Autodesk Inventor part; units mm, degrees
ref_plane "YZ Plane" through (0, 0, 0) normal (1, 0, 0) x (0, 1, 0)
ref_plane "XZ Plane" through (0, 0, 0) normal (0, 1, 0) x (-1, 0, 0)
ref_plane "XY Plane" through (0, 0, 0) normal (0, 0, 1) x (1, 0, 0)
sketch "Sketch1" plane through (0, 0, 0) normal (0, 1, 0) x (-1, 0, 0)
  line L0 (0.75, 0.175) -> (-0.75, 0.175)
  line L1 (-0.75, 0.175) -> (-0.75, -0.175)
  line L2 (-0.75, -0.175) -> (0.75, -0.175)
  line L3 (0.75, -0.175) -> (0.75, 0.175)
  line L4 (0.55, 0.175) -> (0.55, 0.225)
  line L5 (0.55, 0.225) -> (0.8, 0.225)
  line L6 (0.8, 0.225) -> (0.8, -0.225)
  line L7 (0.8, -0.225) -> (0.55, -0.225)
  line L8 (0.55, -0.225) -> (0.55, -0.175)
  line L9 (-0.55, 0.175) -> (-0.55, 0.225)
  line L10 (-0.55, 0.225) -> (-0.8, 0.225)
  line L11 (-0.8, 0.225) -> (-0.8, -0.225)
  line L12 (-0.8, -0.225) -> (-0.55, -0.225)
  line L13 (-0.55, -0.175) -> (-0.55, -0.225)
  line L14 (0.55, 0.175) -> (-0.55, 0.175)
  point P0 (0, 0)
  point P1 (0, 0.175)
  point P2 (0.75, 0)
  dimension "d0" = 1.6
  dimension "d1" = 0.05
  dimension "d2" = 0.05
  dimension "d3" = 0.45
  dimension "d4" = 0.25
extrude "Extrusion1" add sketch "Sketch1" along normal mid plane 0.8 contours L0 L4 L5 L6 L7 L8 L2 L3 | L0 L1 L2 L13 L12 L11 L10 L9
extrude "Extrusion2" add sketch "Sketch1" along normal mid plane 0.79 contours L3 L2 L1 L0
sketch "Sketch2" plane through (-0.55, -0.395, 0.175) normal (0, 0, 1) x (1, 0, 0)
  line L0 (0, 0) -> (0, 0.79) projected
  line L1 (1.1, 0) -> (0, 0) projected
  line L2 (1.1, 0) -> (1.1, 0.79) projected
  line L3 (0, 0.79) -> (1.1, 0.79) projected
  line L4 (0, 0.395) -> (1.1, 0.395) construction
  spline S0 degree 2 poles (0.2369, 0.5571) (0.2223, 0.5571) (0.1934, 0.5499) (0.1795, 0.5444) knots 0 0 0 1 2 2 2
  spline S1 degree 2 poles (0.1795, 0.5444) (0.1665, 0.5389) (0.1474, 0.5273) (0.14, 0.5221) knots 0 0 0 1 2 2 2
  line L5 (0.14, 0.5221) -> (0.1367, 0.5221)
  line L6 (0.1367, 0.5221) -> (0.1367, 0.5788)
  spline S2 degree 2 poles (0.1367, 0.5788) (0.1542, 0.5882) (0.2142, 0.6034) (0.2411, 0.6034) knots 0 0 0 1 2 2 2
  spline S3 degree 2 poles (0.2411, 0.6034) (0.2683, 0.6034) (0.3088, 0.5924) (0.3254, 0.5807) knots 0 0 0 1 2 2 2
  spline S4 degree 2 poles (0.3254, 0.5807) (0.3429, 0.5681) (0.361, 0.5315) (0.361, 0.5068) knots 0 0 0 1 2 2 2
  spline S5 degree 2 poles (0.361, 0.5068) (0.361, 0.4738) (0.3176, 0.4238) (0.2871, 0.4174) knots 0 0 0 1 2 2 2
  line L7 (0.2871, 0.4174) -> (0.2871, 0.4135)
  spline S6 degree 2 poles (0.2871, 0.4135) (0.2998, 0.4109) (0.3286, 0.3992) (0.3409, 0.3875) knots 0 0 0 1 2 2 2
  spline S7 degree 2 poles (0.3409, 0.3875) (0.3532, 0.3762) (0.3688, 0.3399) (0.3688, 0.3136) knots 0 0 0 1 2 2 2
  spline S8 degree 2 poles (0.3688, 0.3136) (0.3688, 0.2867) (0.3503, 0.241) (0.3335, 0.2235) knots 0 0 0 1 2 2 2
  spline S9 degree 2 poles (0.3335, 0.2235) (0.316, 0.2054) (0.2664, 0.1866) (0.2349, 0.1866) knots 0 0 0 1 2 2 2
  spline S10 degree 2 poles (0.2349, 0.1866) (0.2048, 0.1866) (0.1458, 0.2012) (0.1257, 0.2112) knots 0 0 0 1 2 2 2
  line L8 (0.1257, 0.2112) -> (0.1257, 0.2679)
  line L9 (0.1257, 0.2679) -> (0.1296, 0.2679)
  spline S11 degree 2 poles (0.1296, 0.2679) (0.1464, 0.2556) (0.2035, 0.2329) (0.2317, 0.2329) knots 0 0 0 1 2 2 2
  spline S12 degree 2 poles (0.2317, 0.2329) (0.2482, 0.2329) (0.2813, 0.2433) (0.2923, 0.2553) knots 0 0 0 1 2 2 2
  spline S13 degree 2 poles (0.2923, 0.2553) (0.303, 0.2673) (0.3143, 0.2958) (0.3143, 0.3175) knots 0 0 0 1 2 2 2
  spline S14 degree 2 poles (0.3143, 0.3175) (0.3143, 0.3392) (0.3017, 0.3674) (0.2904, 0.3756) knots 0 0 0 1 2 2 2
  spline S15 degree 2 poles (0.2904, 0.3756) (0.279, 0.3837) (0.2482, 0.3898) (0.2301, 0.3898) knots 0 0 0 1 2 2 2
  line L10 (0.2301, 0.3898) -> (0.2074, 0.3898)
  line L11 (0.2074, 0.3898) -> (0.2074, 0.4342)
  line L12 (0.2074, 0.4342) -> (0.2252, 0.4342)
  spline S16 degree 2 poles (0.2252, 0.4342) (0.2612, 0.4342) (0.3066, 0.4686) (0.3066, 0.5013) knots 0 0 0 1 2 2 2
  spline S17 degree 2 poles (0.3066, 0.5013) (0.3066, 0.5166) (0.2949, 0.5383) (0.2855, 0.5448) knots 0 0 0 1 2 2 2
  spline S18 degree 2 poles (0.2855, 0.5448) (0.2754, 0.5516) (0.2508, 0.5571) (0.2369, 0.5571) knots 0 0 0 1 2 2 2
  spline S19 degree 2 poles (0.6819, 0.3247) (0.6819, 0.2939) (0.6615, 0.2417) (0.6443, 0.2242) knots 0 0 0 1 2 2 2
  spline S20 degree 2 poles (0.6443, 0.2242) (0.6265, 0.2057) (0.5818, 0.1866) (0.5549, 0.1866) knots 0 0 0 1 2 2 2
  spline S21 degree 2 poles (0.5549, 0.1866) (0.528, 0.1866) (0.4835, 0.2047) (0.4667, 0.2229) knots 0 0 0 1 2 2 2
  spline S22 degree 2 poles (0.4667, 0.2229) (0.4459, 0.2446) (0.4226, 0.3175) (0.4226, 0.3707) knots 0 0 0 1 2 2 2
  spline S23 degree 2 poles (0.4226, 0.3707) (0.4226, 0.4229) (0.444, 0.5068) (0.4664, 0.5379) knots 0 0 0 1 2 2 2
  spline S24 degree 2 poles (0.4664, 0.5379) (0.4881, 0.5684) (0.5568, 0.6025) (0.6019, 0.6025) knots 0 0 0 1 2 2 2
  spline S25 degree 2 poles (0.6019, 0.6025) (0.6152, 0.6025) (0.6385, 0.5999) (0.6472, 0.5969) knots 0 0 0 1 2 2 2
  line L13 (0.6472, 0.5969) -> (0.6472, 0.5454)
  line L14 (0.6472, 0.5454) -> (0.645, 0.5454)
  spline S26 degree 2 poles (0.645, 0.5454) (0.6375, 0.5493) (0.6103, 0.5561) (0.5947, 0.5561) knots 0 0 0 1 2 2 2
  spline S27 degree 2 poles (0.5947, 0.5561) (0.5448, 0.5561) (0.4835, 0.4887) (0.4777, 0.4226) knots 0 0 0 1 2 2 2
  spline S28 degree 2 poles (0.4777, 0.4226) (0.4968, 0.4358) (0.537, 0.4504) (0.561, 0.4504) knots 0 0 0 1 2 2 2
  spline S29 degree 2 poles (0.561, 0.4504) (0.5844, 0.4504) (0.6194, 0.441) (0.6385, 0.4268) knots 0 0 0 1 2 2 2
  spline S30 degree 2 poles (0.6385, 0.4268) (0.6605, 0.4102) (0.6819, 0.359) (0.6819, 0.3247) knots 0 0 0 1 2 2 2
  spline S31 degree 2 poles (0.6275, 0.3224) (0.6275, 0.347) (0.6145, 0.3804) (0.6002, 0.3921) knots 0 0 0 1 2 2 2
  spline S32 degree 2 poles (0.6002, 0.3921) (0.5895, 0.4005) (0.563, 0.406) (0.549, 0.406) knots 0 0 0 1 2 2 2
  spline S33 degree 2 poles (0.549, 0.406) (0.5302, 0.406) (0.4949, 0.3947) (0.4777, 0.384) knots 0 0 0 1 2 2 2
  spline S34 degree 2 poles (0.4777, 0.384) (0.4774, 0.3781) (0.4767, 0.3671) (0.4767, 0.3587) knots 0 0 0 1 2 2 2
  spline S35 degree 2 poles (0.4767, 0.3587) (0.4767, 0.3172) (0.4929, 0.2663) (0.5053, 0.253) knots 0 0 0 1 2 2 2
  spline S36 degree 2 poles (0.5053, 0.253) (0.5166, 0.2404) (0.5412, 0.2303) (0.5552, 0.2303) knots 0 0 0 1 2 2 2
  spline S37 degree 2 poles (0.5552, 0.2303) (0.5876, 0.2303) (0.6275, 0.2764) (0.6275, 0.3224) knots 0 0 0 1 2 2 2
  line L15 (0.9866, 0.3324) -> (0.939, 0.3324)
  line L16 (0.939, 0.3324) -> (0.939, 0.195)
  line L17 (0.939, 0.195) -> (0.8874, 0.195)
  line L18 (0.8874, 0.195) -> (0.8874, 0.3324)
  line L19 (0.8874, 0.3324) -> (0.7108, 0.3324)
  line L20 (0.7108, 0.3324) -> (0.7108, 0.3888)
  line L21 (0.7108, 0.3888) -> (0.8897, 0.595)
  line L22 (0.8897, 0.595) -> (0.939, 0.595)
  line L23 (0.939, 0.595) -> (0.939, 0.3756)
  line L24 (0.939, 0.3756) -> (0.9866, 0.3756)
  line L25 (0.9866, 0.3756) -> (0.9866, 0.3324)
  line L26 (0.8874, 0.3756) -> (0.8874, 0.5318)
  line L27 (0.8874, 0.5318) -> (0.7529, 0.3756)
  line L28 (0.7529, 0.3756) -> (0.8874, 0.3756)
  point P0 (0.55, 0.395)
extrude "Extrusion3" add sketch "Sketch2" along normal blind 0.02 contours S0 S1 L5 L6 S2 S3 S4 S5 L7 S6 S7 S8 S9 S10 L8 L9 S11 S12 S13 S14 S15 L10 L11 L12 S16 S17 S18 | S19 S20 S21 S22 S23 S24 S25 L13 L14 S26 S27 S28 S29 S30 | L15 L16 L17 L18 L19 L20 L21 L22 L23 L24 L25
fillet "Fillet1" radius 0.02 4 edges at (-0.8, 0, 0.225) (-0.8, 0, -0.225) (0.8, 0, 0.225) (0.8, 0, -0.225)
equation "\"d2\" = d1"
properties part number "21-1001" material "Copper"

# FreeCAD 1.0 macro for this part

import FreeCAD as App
import Part
import Sketcher
Q = App.Units.Quantity


def edges_at(feature, points):
    """Names of the edges that pass closest to the given points."""
    edges = feature.Shape.Edges
    near = lambda p: min(range(len(edges)), key=lambda i: edges[i].distToShape(Part.Vertex(*p))[0])
    return sorted({f"Edge{near(p) + 1}" for p in points})

doc = App.newDocument("Part")
body = doc.addObject("PartDesign::Body", "Body")
body.AllowCompound = True

# Sketch on XZ plane
sketch1 = body.newObject("Sketcher::SketchObject", "Sketch")
sketch1.AttachmentSupport = (doc.getObject("XZ_Plane"), [""])
sketch1.MapMode = "FlatFace"
sketch1.addGeometry([
    Part.LineSegment(App.Vector(-0.55, 0.175, 0), App.Vector(-0.75, 0.175, 0)),  # 0
    Part.LineSegment(App.Vector(-0.75, 0.175, 0), App.Vector(-0.75, -0.175, 0)),  # 1
    Part.LineSegment(App.Vector(-0.75, -0.175, 0), App.Vector(-0.55, -0.175, 0)),  # 2
    Part.LineSegment(App.Vector(-0.55, -0.175, 0), App.Vector(-0.55, -0.225, 0)),  # 3
    Part.LineSegment(App.Vector(-0.55, -0.225, 0), App.Vector(-0.8, -0.225, 0)),  # 4
    Part.LineSegment(App.Vector(-0.8, -0.225, 0), App.Vector(-0.8, 0.225, 0)),  # 5
    Part.LineSegment(App.Vector(-0.8, 0.225, 0), App.Vector(-0.55, 0.225, 0)),  # 6
    Part.LineSegment(App.Vector(-0.55, 0.225, 0), App.Vector(-0.55, 0.175, 0)),  # 7
    Part.LineSegment(App.Vector(0.75, 0.175, 0), App.Vector(0.55, 0.175, 0)),  # 8
    Part.LineSegment(App.Vector(0.55, 0.175, 0), App.Vector(0.55, 0.225, 0)),  # 9
    Part.LineSegment(App.Vector(0.55, 0.225, 0), App.Vector(0.8, 0.225, 0)),  # 10
    Part.LineSegment(App.Vector(0.8, 0.225, 0), App.Vector(0.8, -0.225, 0)),  # 11
    Part.LineSegment(App.Vector(0.8, -0.225, 0), App.Vector(0.55, -0.225, 0)),  # 12
    Part.LineSegment(App.Vector(0.55, -0.225, 0), App.Vector(0.55, -0.175, 0)),  # 13
    Part.LineSegment(App.Vector(0.55, -0.175, 0), App.Vector(0.75, -0.175, 0)),  # 14
    Part.LineSegment(App.Vector(0.75, -0.175, 0), App.Vector(0.75, 0.175, 0)),  # 15
], False)
sketch1.addConstraint([
    Sketcher.Constraint("Coincident", 0, 2, 1, 1),
    Sketcher.Constraint("Coincident", 1, 2, 2, 1),
    Sketcher.Constraint("Coincident", 2, 2, 3, 1),
    Sketcher.Constraint("Coincident", 3, 2, 4, 1),
    Sketcher.Constraint("Coincident", 4, 2, 5, 1),
    Sketcher.Constraint("Coincident", 5, 2, 6, 1),
    Sketcher.Constraint("Coincident", 6, 2, 7, 1),
    Sketcher.Constraint("Coincident", 7, 2, 0, 1),
    Sketcher.Constraint("Coincident", 8, 2, 9, 1),
    Sketcher.Constraint("Coincident", 9, 2, 10, 1),
    Sketcher.Constraint("Coincident", 10, 2, 11, 1),
    Sketcher.Constraint("Coincident", 11, 2, 12, 1),
    Sketcher.Constraint("Coincident", 12, 2, 13, 1),
    Sketcher.Constraint("Coincident", 13, 2, 14, 1),
    Sketcher.Constraint("Coincident", 14, 2, 15, 1),
    Sketcher.Constraint("Coincident", 15, 2, 8, 1),
    Sketcher.Constraint("Horizontal", 0),
    Sketcher.Constraint("Vertical", 1),
    Sketcher.Constraint("Horizontal", 2),
    Sketcher.Constraint("Vertical", 3),
    Sketcher.Constraint("Horizontal", 4),
    Sketcher.Constraint("Vertical", 5),
    Sketcher.Constraint("Horizontal", 6),
    Sketcher.Constraint("Vertical", 7),
    Sketcher.Constraint("Horizontal", 8),
    Sketcher.Constraint("Vertical", 9),
    Sketcher.Constraint("Horizontal", 10),
    Sketcher.Constraint("Vertical", 11),
    Sketcher.Constraint("Horizontal", 12),
    Sketcher.Constraint("Vertical", 13),
    Sketcher.Constraint("Horizontal", 14),
    Sketcher.Constraint("Vertical", 15),
    Sketcher.Constraint("Symmetric", 2, 2, 8, 2, -1, 1),
    Sketcher.Constraint("Symmetric", 4, 2, 10, 2, -1, 1),
    Sketcher.Constraint("Symmetric", 6, 2, 12, 2, -1, 1),
    Sketcher.Constraint("Symmetric", 0, 2, 14, 2, -1, 1),
    Sketcher.Constraint("Symmetric", 7, 2, 8, 2, -2),
    Sketcher.Constraint("Horizontal", 6, 2, 9, 2),
    Sketcher.Constraint("DistanceX", 4, 2, 4, 1, 0.25),
    Sketcher.Constraint("DistanceY", 3, 2, 3, 1, 0.05),
    Sketcher.Constraint("DistanceY", 5, 1, 5, 2, 0.45),
    Sketcher.Constraint("DistanceX", 4, 2, 1, 2, 0.05),
    Sketcher.Constraint("DistanceX", 4, 2, -1, 1, 0.8),
])
pad1 = body.newObject("PartDesign::Pad", "Pad")
pad1.Profile = sketch1
pad1.Length = 0.8
pad1.Midplane = True

# Sketch on XZ plane
sketch2 = body.newObject("Sketcher::SketchObject", "Sketch001")
sketch2.AttachmentSupport = (doc.getObject("XZ_Plane"), [""])
sketch2.MapMode = "FlatFace"
sketch2.addGeometry([
    Part.LineSegment(App.Vector(-0.75, -0.175, 0), App.Vector(-0.75, 0.175, 0)),
    Part.LineSegment(App.Vector(-0.75, 0.175, 0), App.Vector(0.75, 0.175, 0)),
    Part.LineSegment(App.Vector(0.75, 0.175, 0), App.Vector(0.75, -0.175, 0)),
    Part.LineSegment(App.Vector(0.75, -0.175, 0), App.Vector(-0.75, -0.175, 0)),
], False)
sketch2.addConstraint([
    Sketcher.Constraint("Coincident", 0, 2, 1, 1),
    Sketcher.Constraint("Coincident", 1, 2, 2, 1),
    Sketcher.Constraint("Coincident", 2, 2, 3, 1),
    Sketcher.Constraint("Coincident", 3, 2, 0, 1),
    Sketcher.Constraint("Vertical", 0),
    Sketcher.Constraint("Horizontal", 1),
    Sketcher.Constraint("Vertical", 2),
    Sketcher.Constraint("Horizontal", 3),
    Sketcher.Constraint("Symmetric", 0, 2, 2, 2, -1, 1),
    Sketcher.Constraint("DistanceX", 1, 1, 1, 2, 1.5),
    Sketcher.Constraint("DistanceY", 0, 1, 0, 2, 0.35),
])
pad2 = body.newObject("PartDesign::Pad", "Pad001")
pad2.Profile = sketch2
pad2.Length = 0.79
pad2.Midplane = True

# Sketch on XY plane
sketch3 = body.newObject("Sketcher::SketchObject", "Sketch002")
sketch3.AttachmentSupport = (doc.getObject("XY_Plane"), [""])
sketch3.MapMode = "FlatFace"
sketch3.AttachmentOffset = App.Placement(App.Vector(0, 0, 0.175), App.Rotation())
sketch3.addGeometry([
    Part.BSplineCurve([App.Vector(-0.3131, 0.1621, 0), App.Vector(-0.3277, 0.1621, 0), App.Vector(-0.3566, 0.1549, 0), App.Vector(-0.3705, 0.1494, 0)], [3, 1, 3], [0, 1, 2], False, 2, [1, 1, 1, 1], False),  # 0
    Part.BSplineCurve([App.Vector(-0.2645, 0.1498, 0), App.Vector(-0.2746, 0.1566, 0), App.Vector(-0.2992, 0.1621, 0), App.Vector(-0.3131, 0.1621, 0)], [3, 1, 3], [0, 1, 2], False, 2, [1, 1, 1, 1], False),  # 1
    Part.BSplineCurve([App.Vector(-0.2434, 0.1063, 0), App.Vector(-0.2434, 0.1216, 0), App.Vector(-0.2551, 0.1433, 0), App.Vector(-0.2645, 0.1498, 0)], [3, 1, 3], [0, 1, 2], False, 2, [1, 1, 1, 1], False),  # 2
    Part.BSplineCurve([App.Vector(-0.3248, 0.0392, 0), App.Vector(-0.2888, 0.0392, 0), App.Vector(-0.2434, 0.0736, 0), App.Vector(-0.2434, 0.1063, 0)], [3, 1, 3], [0, 1, 2], False, 2, [1, 1, 1, 1], False),  # 3
    Part.LineSegment(App.Vector(-0.3248, 0.0392, 0), App.Vector(-0.3426, 0.0392, 0)),  # 4
    Part.LineSegment(App.Vector(-0.3426, 0.0392, 0), App.Vector(-0.3426, -0.0052, 0)),  # 5
    Part.LineSegment(App.Vector(-0.3426, -0.0052, 0), App.Vector(-0.3199, -0.0052, 0)),  # 6
    Part.BSplineCurve([App.Vector(-0.2596, -0.0194, 0), App.Vector(-0.271, -0.0113, 0), App.Vector(-0.3018, -0.0052, 0), App.Vector(-0.3199, -0.0052, 0)], [3, 1, 3], [0, 1, 2], False, 2, [1, 1, 1, 1], False),  # 7
    Part.BSplineCurve([App.Vector(-0.2357, -0.0775, 0), App.Vector(-0.2357, -0.0558, 0), App.Vector(-0.2483, -0.0276, 0), App.Vector(-0.2596, -0.0194, 0)], [3, 1, 3], [0, 1, 2], False, 2, [1, 1, 1, 1], False),  # 8
    Part.BSplineCurve([App.Vector(-0.2577, -0.1397, 0), App.Vector(-0.247, -0.1277, 0), App.Vector(-0.2357, -0.0992, 0), App.Vector(-0.2357, -0.0775, 0)], [3, 1, 3], [0, 1, 2], False, 2, [1, 1, 1, 1], False),  # 9
    Part.BSplineCurve([App.Vector(-0.3183, -0.1621, 0), App.Vector(-0.3018, -0.1621, 0), App.Vector(-0.2687, -0.1517, 0), App.Vector(-0.2577, -0.1397, 0)], [3, 1, 3], [0, 1, 2], False, 2, [1, 1, 1, 1], False),  # 10
    Part.BSplineCurve([App.Vector(-0.4204, -0.1271, 0), App.Vector(-0.4036, -0.1394, 0), App.Vector(-0.3465, -0.1621, 0), App.Vector(-0.3183, -0.1621, 0)], [3, 1, 3], [0, 1, 2], False, 2, [1, 1, 1, 1], False),  # 11
    Part.LineSegment(App.Vector(-0.4204, -0.1271, 0), App.Vector(-0.4243, -0.1271, 0)),  # 12
    Part.LineSegment(App.Vector(-0.4243, -0.1271, 0), App.Vector(-0.4243, -0.1838, 0)),  # 13
    Part.BSplineCurve([App.Vector(-0.3151, -0.2084, 0), App.Vector(-0.3452, -0.2084, 0), App.Vector(-0.4042, -0.1938, 0), App.Vector(-0.4243, -0.1838, 0)], [3, 1, 3], [0, 1, 2], False, 2, [1, 1, 1, 1], False),  # 14
    Part.BSplineCurve([App.Vector(-0.2165, -0.1715, 0), App.Vector(-0.234, -0.1896, 0), App.Vector(-0.2836, -0.2084, 0), App.Vector(-0.3151, -0.2084, 0)], [3, 1, 3], [0, 1, 2], False, 2, [1, 1, 1, 1], False),  # 15
    Part.BSplineCurve([App.Vector(-0.1812, -0.0814, 0), App.Vector(-0.1812, -0.1083, 0), App.Vector(-0.1997, -0.154, 0), App.Vector(-0.2165, -0.1715, 0)], [3, 1, 3], [0, 1, 2], False, 2, [1, 1, 1, 1], False),  # 16
    Part.BSplineCurve([App.Vector(-0.2091, -0.0075, 0), App.Vector(-0.1968, -0.0188, 0), App.Vector(-0.1812, -0.0551, 0), App.Vector(-0.1812, -0.0814, 0)], [3, 1, 3], [0, 1, 2], False, 2, [1, 1, 1, 1], False),  # 17
    Part.BSplineCurve([App.Vector(-0.2629, 0.0185, 0), App.Vector(-0.2502, 0.0159, 0), App.Vector(-0.2214, 0.0042, 0), App.Vector(-0.2091, -0.0075, 0)], [3, 1, 3], [0, 1, 2], False, 2, [1, 1, 1, 1], False),  # 18
    Part.LineSegment(App.Vector(-0.2629, 0.0185, 0), App.Vector(-0.2629, 0.0224, 0)),  # 19
    Part.BSplineCurve([App.Vector(-0.189, 0.1118, 0), App.Vector(-0.189, 0.0788, 0), App.Vector(-0.2324, 0.0288, 0), App.Vector(-0.2629, 0.0224, 0)], [3, 1, 3], [0, 1, 2], False, 2, [1, 1, 1, 1], False),  # 20
    Part.BSplineCurve([App.Vector(-0.2246, 0.1857, 0), App.Vector(-0.2071, 0.1731, 0), App.Vector(-0.189, 0.1365, 0), App.Vector(-0.189, 0.1118, 0)], [3, 1, 3], [0, 1, 2], False, 2, [1, 1, 1, 1], False),  # 21
    Part.BSplineCurve([App.Vector(-0.3089, 0.2084, 0), App.Vector(-0.2817, 0.2084, 0), App.Vector(-0.2412, 0.1974, 0), App.Vector(-0.2246, 0.1857, 0)], [3, 1, 3], [0, 1, 2], False, 2, [1, 1, 1, 1], False),  # 22
    Part.BSplineCurve([App.Vector(-0.4133, 0.1838, 0), App.Vector(-0.3958, 0.1932, 0), App.Vector(-0.3358, 0.2084, 0), App.Vector(-0.3089, 0.2084, 0)], [3, 1, 3], [0, 1, 2], False, 2, [1, 1, 1, 1], False),  # 23
    Part.LineSegment(App.Vector(-0.4133, 0.1838, 0), App.Vector(-0.4133, 0.1271, 0)),  # 24
    Part.LineSegment(App.Vector(-0.4133, 0.1271, 0), App.Vector(-0.41, 0.1271, 0)),  # 25
    Part.BSplineCurve([App.Vector(-0.3705, 0.1494, 0), App.Vector(-0.3835, 0.1439, 0), App.Vector(-0.4026, 0.1323, 0), App.Vector(-0.41, 0.1271, 0)], [3, 1, 3], [0, 1, 2], False, 2, [1, 1, 1, 1], False),  # 26
    Part.BSplineCurve([App.Vector(0.1319, -0.0703, 0), App.Vector(0.1319, -0.1011, 0), App.Vector(0.1115, -0.1533, 0), App.Vector(0.0943, -0.1708, 0)], [3, 1, 3], [0, 1, 2], False, 2, [1, 1, 1, 1], False),  # 27
    Part.BSplineCurve([App.Vector(0.0885, 0.0318, 0), App.Vector(0.1105, 0.0152, 0), App.Vector(0.1319, -0.036, 0), App.Vector(0.1319, -0.0703, 0)], [3, 1, 3], [0, 1, 2], False, 2, [1, 1, 1, 1], False),  # 28
    Part.BSplineCurve([App.Vector(0.011, 0.0554, 0), App.Vector(0.0344, 0.0554, 0), App.Vector(0.0694, 0.046, 0), App.Vector(0.0885, 0.0318, 0)], [3, 1, 3], [0, 1, 2], False, 2, [1, 1, 1, 1], False),  # 29
    Part.BSplineCurve([App.Vector(-0.0723, 0.0276, 0), App.Vector(-0.0532, 0.0408, 0), App.Vector(-0.013, 0.0554, 0), App.Vector(0.011, 0.0554, 0)], [3, 1, 3], [0, 1, 2], False, 2, [1, 1, 1, 1], False),  # 30
    Part.BSplineCurve([App.Vector(0.0447, 0.1611, 0), App.Vector(-0.0052, 0.1611, 0), App.Vector(-0.0665, 0.0937, 0), App.Vector(-0.0723, 0.0276, 0)], [3, 1, 3], [0, 1, 2], False, 2, [1, 1, 1, 1], False),  # 31
    Part.BSplineCurve([App.Vector(0.095, 0.1504, 0), App.Vector(0.0875, 0.1543, 0), App.Vector(0.0603, 0.1611, 0), App.Vector(0.0447, 0.1611, 0)], [3, 1, 3], [0, 1, 2], False, 2, [1, 1, 1, 1], False),  # 32
    Part.LineSegment(App.Vector(0.095, 0.1504, 0), App.Vector(0.0972, 0.1504, 0)),  # 33
    Part.LineSegment(App.Vector(0.0972, 0.1504, 0), App.Vector(0.0972, 0.2019, 0)),  # 34
    Part.BSplineCurve([App.Vector(0.0519, 0.2075, 0), App.Vector(0.0652, 0.2075, 0), App.Vector(0.0885, 0.2049, 0), App.Vector(0.0972, 0.2019, 0)], [3, 1, 3], [0, 1, 2], False, 2, [1, 1, 1, 1], False),  # 35
    Part.BSplineCurve([App.Vector(-0.0836, 0.1429, 0), App.Vector(-0.0619, 0.1734, 0), App.Vector(0.0068, 0.2075, 0), App.Vector(0.0519, 0.2075, 0)], [3, 1, 3], [0, 1, 2], False, 2, [1, 1, 1, 1], False),  # 36
    Part.BSplineCurve([App.Vector(-0.1274, -0.0243, 0), App.Vector(-0.1274, 0.0279, 0), App.Vector(-0.106, 0.1118, 0), App.Vector(-0.0836, 0.1429, 0)], [3, 1, 3], [0, 1, 2], False, 2, [1, 1, 1, 1], False),  # 37
    Part.BSplineCurve([App.Vector(-0.0833, -0.1721, 0), App.Vector(-0.1041, -0.1504, 0), App.Vector(-0.1274, -0.0775, 0), App.Vector(-0.1274, -0.0243, 0)], [3, 1, 3], [0, 1, 2], False, 2, [1, 1, 1, 1], False),  # 38
    Part.BSplineCurve([App.Vector(0.0049, -0.2084, 0), App.Vector(-0.022, -0.2084, 0), App.Vector(-0.0665, -0.1903, 0), App.Vector(-0.0833, -0.1721, 0)], [3, 1, 3], [0, 1, 2], False, 2, [1, 1, 1, 1], False),  # 39
    Part.BSplineCurve([App.Vector(0.0943, -0.1708, 0), App.Vector(0.0765, -0.1893, 0), App.Vector(0.0318, -0.2084, 0), App.Vector(0.0049, -0.2084, 0)], [3, 1, 3], [0, 1, 2], False, 2, [1, 1, 1, 1], False),  # 40
    Part.BSplineCurve([App.Vector(0.0775, -0.0726, 0), App.Vector(0.0775, -0.048, 0), App.Vector(0.0645, -0.0146, 0), App.Vector(0.0502, -0.0029, 0)], [3, 1, 3], [0, 1, 2], False, 2, [1, 1, 1, 1], False),  # 41
    Part.BSplineCurve([App.Vector(0.0052, -0.1647, 0), App.Vector(0.0376, -0.1647, 0), App.Vector(0.0775, -0.1186, 0), App.Vector(0.0775, -0.0726, 0)], [3, 1, 3], [0, 1, 2], False, 2, [1, 1, 1, 1], False),  # 42
    Part.BSplineCurve([App.Vector(-0.0447, -0.142, 0), App.Vector(-0.0334, -0.1546, 0), App.Vector(-0.0088, -0.1647, 0), App.Vector(0.0052, -0.1647, 0)], [3, 1, 3], [0, 1, 2], False, 2, [1, 1, 1, 1], False),  # 43
    Part.BSplineCurve([App.Vector(-0.0733, -0.0363, 0), App.Vector(-0.0733, -0.0778, 0), App.Vector(-0.0571, -0.1287, 0), App.Vector(-0.0447, -0.142, 0)], [3, 1, 3], [0, 1, 2], False, 2, [1, 1, 1, 1], False),  # 44
    Part.BSplineCurve([App.Vector(-0.0723, -0.011, 0), App.Vector(-0.0726, -0.0169, 0), App.Vector(-0.0733, -0.0279, 0), App.Vector(-0.0733, -0.0363, 0)], [3, 1, 3], [0, 1, 2], False, 2, [1, 1, 1, 1], False),  # 45
    Part.BSplineCurve([App.Vector(-0.001, 0.011, 0), App.Vector(-0.0198, 0.011, 0), App.Vector(-0.0551, -0.0003, 0), App.Vector(-0.0723, -0.011, 0)], [3, 1, 3], [0, 1, 2], False, 2, [1, 1, 1, 1], False),  # 46
    Part.BSplineCurve([App.Vector(0.0502, -0.0029, 0), App.Vector(0.0395, 0.0055, 0), App.Vector(0.013, 0.011, 0), App.Vector(-0.001, 0.011, 0)], [3, 1, 3], [0, 1, 2], False, 2, [1, 1, 1, 1], False),  # 47
    Part.LineSegment(App.Vector(0.389, -0.0626, 0), App.Vector(0.4366, -0.0626, 0)),  # 48
    Part.LineSegment(App.Vector(0.4366, -0.0626, 0), App.Vector(0.4366, -0.0194, 0)),  # 49
    Part.LineSegment(App.Vector(0.4366, -0.0194, 0), App.Vector(0.389, -0.0194, 0)),  # 50
    Part.LineSegment(App.Vector(0.389, -0.0194, 0), App.Vector(0.389, 0.2, 0)),  # 51
    Part.LineSegment(App.Vector(0.389, 0.2, 0), App.Vector(0.3397, 0.2, 0)),  # 52
    Part.LineSegment(App.Vector(0.3397, 0.2, 0), App.Vector(0.1608, -0.0062, 0)),  # 53
    Part.LineSegment(App.Vector(0.1608, -0.0062, 0), App.Vector(0.1608, -0.0626, 0)),  # 54
    Part.LineSegment(App.Vector(0.1608, -0.0626, 0), App.Vector(0.3374, -0.0626, 0)),  # 55
    Part.LineSegment(App.Vector(0.3374, -0.0626, 0), App.Vector(0.3374, -0.2, 0)),  # 56
    Part.LineSegment(App.Vector(0.3374, -0.2, 0), App.Vector(0.389, -0.2, 0)),  # 57
    Part.LineSegment(App.Vector(0.389, -0.2, 0), App.Vector(0.389, -0.0626, 0)),  # 58
    Part.LineSegment(App.Vector(0.3374, 0.1368, 0), App.Vector(0.3374, -0.0194, 0)),  # 59
    Part.LineSegment(App.Vector(0.3374, -0.0194, 0), App.Vector(0.2029, -0.0194, 0)),  # 60
    Part.LineSegment(App.Vector(0.2029, -0.0194, 0), App.Vector(0.3374, 0.1368, 0)),  # 61
], False)
sketch3.addConstraint([
    Sketcher.Constraint("Block", 0),
    Sketcher.Constraint("Block", 1),
    Sketcher.Constraint("Block", 2),
    Sketcher.Constraint("Block", 3),
    Sketcher.Constraint("Block", 7),
    Sketcher.Constraint("Block", 8),
    Sketcher.Constraint("Block", 9),
    Sketcher.Constraint("Block", 10),
    Sketcher.Constraint("Block", 11),
    Sketcher.Constraint("Block", 14),
    Sketcher.Constraint("Block", 15),
    Sketcher.Constraint("Block", 16),
    Sketcher.Constraint("Block", 17),
    Sketcher.Constraint("Block", 18),
    Sketcher.Constraint("Block", 20),
    Sketcher.Constraint("Block", 21),
    Sketcher.Constraint("Block", 22),
    Sketcher.Constraint("Block", 23),
    Sketcher.Constraint("Block", 26),
    Sketcher.Constraint("Block", 27),
    Sketcher.Constraint("Block", 28),
    Sketcher.Constraint("Block", 29),
    Sketcher.Constraint("Block", 30),
    Sketcher.Constraint("Block", 31),
    Sketcher.Constraint("Block", 32),
    Sketcher.Constraint("Block", 35),
    Sketcher.Constraint("Block", 36),
    Sketcher.Constraint("Block", 37),
    Sketcher.Constraint("Block", 38),
    Sketcher.Constraint("Block", 39),
    Sketcher.Constraint("Block", 40),
    Sketcher.Constraint("Block", 41),
    Sketcher.Constraint("Block", 42),
    Sketcher.Constraint("Block", 43),
    Sketcher.Constraint("Block", 44),
    Sketcher.Constraint("Block", 45),
    Sketcher.Constraint("Block", 46),
    Sketcher.Constraint("Block", 47),
    Sketcher.Constraint("Coincident", 3, 1, 4, 1),
    Sketcher.Constraint("Coincident", 4, 2, 5, 1),
    Sketcher.Constraint("Coincident", 5, 2, 6, 1),
    Sketcher.Constraint("Coincident", 6, 2, 7, 2),
    Sketcher.Constraint("Coincident", 11, 1, 12, 1),
    Sketcher.Constraint("Coincident", 12, 2, 13, 1),
    Sketcher.Constraint("Coincident", 13, 2, 14, 2),
    Sketcher.Constraint("Coincident", 18, 1, 19, 1),
    Sketcher.Constraint("Coincident", 19, 2, 20, 2),
    Sketcher.Constraint("Coincident", 23, 1, 24, 1),
    Sketcher.Constraint("Coincident", 24, 2, 25, 1),
    Sketcher.Constraint("Coincident", 25, 2, 26, 2),
    Sketcher.Constraint("Coincident", 32, 1, 33, 1),
    Sketcher.Constraint("Coincident", 33, 2, 34, 1),
    Sketcher.Constraint("Coincident", 34, 2, 35, 2),
    Sketcher.Constraint("Coincident", 48, 2, 49, 1),
    Sketcher.Constraint("Coincident", 49, 2, 50, 1),
    Sketcher.Constraint("Coincident", 50, 2, 51, 1),
    Sketcher.Constraint("Coincident", 51, 2, 52, 1),
    Sketcher.Constraint("Coincident", 52, 2, 53, 1),
    Sketcher.Constraint("Coincident", 53, 2, 54, 1),
    Sketcher.Constraint("Coincident", 54, 2, 55, 1),
    Sketcher.Constraint("Coincident", 55, 2, 56, 1),
    Sketcher.Constraint("Coincident", 56, 2, 57, 1),
    Sketcher.Constraint("Coincident", 57, 2, 58, 1),
    Sketcher.Constraint("Coincident", 58, 2, 48, 1),
    Sketcher.Constraint("Coincident", 59, 2, 60, 1),
    Sketcher.Constraint("Coincident", 60, 2, 61, 1),
    Sketcher.Constraint("Coincident", 61, 2, 59, 1),
    Sketcher.Constraint("Horizontal", 4),
    Sketcher.Constraint("Vertical", 5),
    Sketcher.Constraint("Horizontal", 6),
    Sketcher.Constraint("Horizontal", 12),
    Sketcher.Constraint("Vertical", 13),
    Sketcher.Constraint("Vertical", 24),
    Sketcher.Constraint("Horizontal", 25),
    Sketcher.Constraint("Horizontal", 33),
    Sketcher.Constraint("Vertical", 34),
    Sketcher.Constraint("Horizontal", 48),
    Sketcher.Constraint("Vertical", 49),
    Sketcher.Constraint("Horizontal", 50),
    Sketcher.Constraint("Vertical", 51),
    Sketcher.Constraint("Horizontal", 52),
    Sketcher.Constraint("Vertical", 54),
    Sketcher.Constraint("Horizontal", 55),
    Sketcher.Constraint("Vertical", 56),
    Sketcher.Constraint("Horizontal", 57),
    Sketcher.Constraint("Vertical", 58),
    Sketcher.Constraint("Vertical", 59),
    Sketcher.Constraint("Horizontal", 60),
    Sketcher.Constraint("Symmetric", 51, 2, 57, 2, -1),
    Sketcher.Constraint("Horizontal", 48, 2, 54, 2),
    Sketcher.Constraint("Horizontal", 50, 2, 59, 2),
    Sketcher.Constraint("Vertical", 56, 2, 59, 2),
    Sketcher.Constraint("Equal", 57, 34),
    Sketcher.Constraint("DistanceY", -1, 1, 51, 2, 0.2),
    Sketcher.Constraint("Angle", 61, Q("49.269 deg")),
    Sketcher.Constraint("Distance", 53, 0.273),
    Sketcher.Constraint("DistanceX", 4, 2, 4, 1, 0.0178),
    Sketcher.Constraint("DistanceX", 48, 1, 48, 2, 0.0476),
    Sketcher.Constraint("DistanceX", 52, 2, 52, 1, 0.0493),
    Sketcher.Constraint("DistanceX", 55, 1, 55, 2, 0.1766),
    Sketcher.Constraint("DistanceX", 60, 2, 60, 1, 0.1345),
    Sketcher.Constraint("DistanceY", 49, 1, 49, 2, 0.0432),
    Sketcher.Constraint("DistanceY", 51, 1, 51, 2, 0.2194),
    Sketcher.Constraint("DistanceX", -1, 1, 50, 2, 0.389),
])
pad3 = body.newObject("PartDesign::Pad", "Pad002")
pad3.Profile = sketch3
pad3.Length = 0.02
doc.recompute()

fillet = body.newObject("PartDesign::Fillet", "Fillet")
fillet.Base = (pad3, edges_at(pad3, [
    (-0.8, 0, 0.225),
    (-0.8, 0, -0.225),
    (0.8, 0, 0.225),
    (0.8, 0, -0.225),
]))
fillet.Radius = 0.02

doc.recompute()
